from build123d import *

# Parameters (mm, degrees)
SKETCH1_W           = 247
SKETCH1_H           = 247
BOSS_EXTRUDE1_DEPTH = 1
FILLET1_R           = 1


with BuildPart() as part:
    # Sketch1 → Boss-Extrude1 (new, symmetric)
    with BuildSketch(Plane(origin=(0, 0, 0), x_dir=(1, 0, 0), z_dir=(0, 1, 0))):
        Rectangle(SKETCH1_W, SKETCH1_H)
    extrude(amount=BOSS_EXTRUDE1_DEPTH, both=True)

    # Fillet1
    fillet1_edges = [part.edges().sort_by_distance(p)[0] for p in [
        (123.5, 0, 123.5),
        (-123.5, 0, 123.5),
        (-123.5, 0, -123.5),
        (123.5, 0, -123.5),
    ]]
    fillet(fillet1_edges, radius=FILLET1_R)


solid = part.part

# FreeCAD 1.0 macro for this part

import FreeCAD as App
import Part
import Sketcher

V = App.Vector
Q = App.Units.Quantity


def edges_at(feature, points):
    """Names of the edges that pass closest to the given points."""
    edges = feature.Shape.Edges
    near = lambda p: min(range(len(edges)), key=lambda i: edges[i].distToShape(Part.Vertex(*p))[0])
    return sorted({f"Edge{near(p) + 1}" for p in points})

doc = App.newDocument("Part")
params = doc.addObject("Spreadsheet::Sheet", "Params")
for row, (alias, value) in enumerate([
    ("sketch1_width", "247 mm"),
    ("pad1_length", "2 mm"),
    ("fillet_radius", "1 mm"),
], start=1):
    params.set(f"A{row}", alias)
    params.set(f"B{row}", "=" + value)
    params.setAlias(f"B{row}", alias)

body = doc.addObject("PartDesign::Body", "Body")

# Sketch on XZ plane
sketch1 = body.newObject("Sketcher::SketchObject", "Sketch")
sketch1.AttachmentSupport = (doc.getObject("XZ_Plane"), [""])
sketch1.MapMode = "FlatFace"
sketch1.addGeometry(Part.LineSegment(V(-123.5, -123.5, 0), V(-123.5, 123.5, 0)), False)
sketch1.addGeometry(Part.LineSegment(V(-123.5, 123.5, 0), V(123.5, 123.5, 0)), False)
sketch1.addGeometry(Part.LineSegment(V(123.5, 123.5, 0), V(123.5, -123.5, 0)), False)
sketch1.addGeometry(Part.LineSegment(V(123.5, -123.5, 0), V(-123.5, -123.5, 0)), False)
sketch1.addConstraint(Sketcher.Constraint("Coincident", 0, 2, 1, 1))
sketch1.addConstraint(Sketcher.Constraint("Coincident", 1, 2, 2, 1))
sketch1.addConstraint(Sketcher.Constraint("Coincident", 2, 2, 3, 1))
sketch1.addConstraint(Sketcher.Constraint("Coincident", 3, 2, 0, 1))
sketch1.addConstraint(Sketcher.Constraint("Vertical", 0))
sketch1.addConstraint(Sketcher.Constraint("Horizontal", 1))
sketch1.addConstraint(Sketcher.Constraint("Vertical", 2))
sketch1.addConstraint(Sketcher.Constraint("Horizontal", 3))
sketch1.addConstraint(Sketcher.Constraint("Symmetric", 0, 2, 2, 2, -1, 1))
sketch1.addConstraint(Sketcher.Constraint("Equal", 3, 0))
sketch1.addConstraint(Sketcher.Constraint("DistanceX", 1, 1, 1, 2, Q("247 mm")))
sketch1.setExpression("Constraints[10]", "Params.sketch1_width")
pad1 = body.newObject("PartDesign::Pad", "Pad")
pad1.Profile = sketch1
pad1.setExpression("Length", "Params.pad1_length")
pad1.Midplane = True
doc.recompute()

fillet = body.newObject("PartDesign::Fillet", "Fillet")
fillet.Base = (pad1, edges_at(pad1, [
    (123.5, 0, 123.5),
    (-123.5, 0, 123.5),
    (-123.5, 0, -123.5),
    (123.5, 0, -123.5),
]))
fillet.setExpression("Radius", "Params.fillet_radius")

doc.recompute()
